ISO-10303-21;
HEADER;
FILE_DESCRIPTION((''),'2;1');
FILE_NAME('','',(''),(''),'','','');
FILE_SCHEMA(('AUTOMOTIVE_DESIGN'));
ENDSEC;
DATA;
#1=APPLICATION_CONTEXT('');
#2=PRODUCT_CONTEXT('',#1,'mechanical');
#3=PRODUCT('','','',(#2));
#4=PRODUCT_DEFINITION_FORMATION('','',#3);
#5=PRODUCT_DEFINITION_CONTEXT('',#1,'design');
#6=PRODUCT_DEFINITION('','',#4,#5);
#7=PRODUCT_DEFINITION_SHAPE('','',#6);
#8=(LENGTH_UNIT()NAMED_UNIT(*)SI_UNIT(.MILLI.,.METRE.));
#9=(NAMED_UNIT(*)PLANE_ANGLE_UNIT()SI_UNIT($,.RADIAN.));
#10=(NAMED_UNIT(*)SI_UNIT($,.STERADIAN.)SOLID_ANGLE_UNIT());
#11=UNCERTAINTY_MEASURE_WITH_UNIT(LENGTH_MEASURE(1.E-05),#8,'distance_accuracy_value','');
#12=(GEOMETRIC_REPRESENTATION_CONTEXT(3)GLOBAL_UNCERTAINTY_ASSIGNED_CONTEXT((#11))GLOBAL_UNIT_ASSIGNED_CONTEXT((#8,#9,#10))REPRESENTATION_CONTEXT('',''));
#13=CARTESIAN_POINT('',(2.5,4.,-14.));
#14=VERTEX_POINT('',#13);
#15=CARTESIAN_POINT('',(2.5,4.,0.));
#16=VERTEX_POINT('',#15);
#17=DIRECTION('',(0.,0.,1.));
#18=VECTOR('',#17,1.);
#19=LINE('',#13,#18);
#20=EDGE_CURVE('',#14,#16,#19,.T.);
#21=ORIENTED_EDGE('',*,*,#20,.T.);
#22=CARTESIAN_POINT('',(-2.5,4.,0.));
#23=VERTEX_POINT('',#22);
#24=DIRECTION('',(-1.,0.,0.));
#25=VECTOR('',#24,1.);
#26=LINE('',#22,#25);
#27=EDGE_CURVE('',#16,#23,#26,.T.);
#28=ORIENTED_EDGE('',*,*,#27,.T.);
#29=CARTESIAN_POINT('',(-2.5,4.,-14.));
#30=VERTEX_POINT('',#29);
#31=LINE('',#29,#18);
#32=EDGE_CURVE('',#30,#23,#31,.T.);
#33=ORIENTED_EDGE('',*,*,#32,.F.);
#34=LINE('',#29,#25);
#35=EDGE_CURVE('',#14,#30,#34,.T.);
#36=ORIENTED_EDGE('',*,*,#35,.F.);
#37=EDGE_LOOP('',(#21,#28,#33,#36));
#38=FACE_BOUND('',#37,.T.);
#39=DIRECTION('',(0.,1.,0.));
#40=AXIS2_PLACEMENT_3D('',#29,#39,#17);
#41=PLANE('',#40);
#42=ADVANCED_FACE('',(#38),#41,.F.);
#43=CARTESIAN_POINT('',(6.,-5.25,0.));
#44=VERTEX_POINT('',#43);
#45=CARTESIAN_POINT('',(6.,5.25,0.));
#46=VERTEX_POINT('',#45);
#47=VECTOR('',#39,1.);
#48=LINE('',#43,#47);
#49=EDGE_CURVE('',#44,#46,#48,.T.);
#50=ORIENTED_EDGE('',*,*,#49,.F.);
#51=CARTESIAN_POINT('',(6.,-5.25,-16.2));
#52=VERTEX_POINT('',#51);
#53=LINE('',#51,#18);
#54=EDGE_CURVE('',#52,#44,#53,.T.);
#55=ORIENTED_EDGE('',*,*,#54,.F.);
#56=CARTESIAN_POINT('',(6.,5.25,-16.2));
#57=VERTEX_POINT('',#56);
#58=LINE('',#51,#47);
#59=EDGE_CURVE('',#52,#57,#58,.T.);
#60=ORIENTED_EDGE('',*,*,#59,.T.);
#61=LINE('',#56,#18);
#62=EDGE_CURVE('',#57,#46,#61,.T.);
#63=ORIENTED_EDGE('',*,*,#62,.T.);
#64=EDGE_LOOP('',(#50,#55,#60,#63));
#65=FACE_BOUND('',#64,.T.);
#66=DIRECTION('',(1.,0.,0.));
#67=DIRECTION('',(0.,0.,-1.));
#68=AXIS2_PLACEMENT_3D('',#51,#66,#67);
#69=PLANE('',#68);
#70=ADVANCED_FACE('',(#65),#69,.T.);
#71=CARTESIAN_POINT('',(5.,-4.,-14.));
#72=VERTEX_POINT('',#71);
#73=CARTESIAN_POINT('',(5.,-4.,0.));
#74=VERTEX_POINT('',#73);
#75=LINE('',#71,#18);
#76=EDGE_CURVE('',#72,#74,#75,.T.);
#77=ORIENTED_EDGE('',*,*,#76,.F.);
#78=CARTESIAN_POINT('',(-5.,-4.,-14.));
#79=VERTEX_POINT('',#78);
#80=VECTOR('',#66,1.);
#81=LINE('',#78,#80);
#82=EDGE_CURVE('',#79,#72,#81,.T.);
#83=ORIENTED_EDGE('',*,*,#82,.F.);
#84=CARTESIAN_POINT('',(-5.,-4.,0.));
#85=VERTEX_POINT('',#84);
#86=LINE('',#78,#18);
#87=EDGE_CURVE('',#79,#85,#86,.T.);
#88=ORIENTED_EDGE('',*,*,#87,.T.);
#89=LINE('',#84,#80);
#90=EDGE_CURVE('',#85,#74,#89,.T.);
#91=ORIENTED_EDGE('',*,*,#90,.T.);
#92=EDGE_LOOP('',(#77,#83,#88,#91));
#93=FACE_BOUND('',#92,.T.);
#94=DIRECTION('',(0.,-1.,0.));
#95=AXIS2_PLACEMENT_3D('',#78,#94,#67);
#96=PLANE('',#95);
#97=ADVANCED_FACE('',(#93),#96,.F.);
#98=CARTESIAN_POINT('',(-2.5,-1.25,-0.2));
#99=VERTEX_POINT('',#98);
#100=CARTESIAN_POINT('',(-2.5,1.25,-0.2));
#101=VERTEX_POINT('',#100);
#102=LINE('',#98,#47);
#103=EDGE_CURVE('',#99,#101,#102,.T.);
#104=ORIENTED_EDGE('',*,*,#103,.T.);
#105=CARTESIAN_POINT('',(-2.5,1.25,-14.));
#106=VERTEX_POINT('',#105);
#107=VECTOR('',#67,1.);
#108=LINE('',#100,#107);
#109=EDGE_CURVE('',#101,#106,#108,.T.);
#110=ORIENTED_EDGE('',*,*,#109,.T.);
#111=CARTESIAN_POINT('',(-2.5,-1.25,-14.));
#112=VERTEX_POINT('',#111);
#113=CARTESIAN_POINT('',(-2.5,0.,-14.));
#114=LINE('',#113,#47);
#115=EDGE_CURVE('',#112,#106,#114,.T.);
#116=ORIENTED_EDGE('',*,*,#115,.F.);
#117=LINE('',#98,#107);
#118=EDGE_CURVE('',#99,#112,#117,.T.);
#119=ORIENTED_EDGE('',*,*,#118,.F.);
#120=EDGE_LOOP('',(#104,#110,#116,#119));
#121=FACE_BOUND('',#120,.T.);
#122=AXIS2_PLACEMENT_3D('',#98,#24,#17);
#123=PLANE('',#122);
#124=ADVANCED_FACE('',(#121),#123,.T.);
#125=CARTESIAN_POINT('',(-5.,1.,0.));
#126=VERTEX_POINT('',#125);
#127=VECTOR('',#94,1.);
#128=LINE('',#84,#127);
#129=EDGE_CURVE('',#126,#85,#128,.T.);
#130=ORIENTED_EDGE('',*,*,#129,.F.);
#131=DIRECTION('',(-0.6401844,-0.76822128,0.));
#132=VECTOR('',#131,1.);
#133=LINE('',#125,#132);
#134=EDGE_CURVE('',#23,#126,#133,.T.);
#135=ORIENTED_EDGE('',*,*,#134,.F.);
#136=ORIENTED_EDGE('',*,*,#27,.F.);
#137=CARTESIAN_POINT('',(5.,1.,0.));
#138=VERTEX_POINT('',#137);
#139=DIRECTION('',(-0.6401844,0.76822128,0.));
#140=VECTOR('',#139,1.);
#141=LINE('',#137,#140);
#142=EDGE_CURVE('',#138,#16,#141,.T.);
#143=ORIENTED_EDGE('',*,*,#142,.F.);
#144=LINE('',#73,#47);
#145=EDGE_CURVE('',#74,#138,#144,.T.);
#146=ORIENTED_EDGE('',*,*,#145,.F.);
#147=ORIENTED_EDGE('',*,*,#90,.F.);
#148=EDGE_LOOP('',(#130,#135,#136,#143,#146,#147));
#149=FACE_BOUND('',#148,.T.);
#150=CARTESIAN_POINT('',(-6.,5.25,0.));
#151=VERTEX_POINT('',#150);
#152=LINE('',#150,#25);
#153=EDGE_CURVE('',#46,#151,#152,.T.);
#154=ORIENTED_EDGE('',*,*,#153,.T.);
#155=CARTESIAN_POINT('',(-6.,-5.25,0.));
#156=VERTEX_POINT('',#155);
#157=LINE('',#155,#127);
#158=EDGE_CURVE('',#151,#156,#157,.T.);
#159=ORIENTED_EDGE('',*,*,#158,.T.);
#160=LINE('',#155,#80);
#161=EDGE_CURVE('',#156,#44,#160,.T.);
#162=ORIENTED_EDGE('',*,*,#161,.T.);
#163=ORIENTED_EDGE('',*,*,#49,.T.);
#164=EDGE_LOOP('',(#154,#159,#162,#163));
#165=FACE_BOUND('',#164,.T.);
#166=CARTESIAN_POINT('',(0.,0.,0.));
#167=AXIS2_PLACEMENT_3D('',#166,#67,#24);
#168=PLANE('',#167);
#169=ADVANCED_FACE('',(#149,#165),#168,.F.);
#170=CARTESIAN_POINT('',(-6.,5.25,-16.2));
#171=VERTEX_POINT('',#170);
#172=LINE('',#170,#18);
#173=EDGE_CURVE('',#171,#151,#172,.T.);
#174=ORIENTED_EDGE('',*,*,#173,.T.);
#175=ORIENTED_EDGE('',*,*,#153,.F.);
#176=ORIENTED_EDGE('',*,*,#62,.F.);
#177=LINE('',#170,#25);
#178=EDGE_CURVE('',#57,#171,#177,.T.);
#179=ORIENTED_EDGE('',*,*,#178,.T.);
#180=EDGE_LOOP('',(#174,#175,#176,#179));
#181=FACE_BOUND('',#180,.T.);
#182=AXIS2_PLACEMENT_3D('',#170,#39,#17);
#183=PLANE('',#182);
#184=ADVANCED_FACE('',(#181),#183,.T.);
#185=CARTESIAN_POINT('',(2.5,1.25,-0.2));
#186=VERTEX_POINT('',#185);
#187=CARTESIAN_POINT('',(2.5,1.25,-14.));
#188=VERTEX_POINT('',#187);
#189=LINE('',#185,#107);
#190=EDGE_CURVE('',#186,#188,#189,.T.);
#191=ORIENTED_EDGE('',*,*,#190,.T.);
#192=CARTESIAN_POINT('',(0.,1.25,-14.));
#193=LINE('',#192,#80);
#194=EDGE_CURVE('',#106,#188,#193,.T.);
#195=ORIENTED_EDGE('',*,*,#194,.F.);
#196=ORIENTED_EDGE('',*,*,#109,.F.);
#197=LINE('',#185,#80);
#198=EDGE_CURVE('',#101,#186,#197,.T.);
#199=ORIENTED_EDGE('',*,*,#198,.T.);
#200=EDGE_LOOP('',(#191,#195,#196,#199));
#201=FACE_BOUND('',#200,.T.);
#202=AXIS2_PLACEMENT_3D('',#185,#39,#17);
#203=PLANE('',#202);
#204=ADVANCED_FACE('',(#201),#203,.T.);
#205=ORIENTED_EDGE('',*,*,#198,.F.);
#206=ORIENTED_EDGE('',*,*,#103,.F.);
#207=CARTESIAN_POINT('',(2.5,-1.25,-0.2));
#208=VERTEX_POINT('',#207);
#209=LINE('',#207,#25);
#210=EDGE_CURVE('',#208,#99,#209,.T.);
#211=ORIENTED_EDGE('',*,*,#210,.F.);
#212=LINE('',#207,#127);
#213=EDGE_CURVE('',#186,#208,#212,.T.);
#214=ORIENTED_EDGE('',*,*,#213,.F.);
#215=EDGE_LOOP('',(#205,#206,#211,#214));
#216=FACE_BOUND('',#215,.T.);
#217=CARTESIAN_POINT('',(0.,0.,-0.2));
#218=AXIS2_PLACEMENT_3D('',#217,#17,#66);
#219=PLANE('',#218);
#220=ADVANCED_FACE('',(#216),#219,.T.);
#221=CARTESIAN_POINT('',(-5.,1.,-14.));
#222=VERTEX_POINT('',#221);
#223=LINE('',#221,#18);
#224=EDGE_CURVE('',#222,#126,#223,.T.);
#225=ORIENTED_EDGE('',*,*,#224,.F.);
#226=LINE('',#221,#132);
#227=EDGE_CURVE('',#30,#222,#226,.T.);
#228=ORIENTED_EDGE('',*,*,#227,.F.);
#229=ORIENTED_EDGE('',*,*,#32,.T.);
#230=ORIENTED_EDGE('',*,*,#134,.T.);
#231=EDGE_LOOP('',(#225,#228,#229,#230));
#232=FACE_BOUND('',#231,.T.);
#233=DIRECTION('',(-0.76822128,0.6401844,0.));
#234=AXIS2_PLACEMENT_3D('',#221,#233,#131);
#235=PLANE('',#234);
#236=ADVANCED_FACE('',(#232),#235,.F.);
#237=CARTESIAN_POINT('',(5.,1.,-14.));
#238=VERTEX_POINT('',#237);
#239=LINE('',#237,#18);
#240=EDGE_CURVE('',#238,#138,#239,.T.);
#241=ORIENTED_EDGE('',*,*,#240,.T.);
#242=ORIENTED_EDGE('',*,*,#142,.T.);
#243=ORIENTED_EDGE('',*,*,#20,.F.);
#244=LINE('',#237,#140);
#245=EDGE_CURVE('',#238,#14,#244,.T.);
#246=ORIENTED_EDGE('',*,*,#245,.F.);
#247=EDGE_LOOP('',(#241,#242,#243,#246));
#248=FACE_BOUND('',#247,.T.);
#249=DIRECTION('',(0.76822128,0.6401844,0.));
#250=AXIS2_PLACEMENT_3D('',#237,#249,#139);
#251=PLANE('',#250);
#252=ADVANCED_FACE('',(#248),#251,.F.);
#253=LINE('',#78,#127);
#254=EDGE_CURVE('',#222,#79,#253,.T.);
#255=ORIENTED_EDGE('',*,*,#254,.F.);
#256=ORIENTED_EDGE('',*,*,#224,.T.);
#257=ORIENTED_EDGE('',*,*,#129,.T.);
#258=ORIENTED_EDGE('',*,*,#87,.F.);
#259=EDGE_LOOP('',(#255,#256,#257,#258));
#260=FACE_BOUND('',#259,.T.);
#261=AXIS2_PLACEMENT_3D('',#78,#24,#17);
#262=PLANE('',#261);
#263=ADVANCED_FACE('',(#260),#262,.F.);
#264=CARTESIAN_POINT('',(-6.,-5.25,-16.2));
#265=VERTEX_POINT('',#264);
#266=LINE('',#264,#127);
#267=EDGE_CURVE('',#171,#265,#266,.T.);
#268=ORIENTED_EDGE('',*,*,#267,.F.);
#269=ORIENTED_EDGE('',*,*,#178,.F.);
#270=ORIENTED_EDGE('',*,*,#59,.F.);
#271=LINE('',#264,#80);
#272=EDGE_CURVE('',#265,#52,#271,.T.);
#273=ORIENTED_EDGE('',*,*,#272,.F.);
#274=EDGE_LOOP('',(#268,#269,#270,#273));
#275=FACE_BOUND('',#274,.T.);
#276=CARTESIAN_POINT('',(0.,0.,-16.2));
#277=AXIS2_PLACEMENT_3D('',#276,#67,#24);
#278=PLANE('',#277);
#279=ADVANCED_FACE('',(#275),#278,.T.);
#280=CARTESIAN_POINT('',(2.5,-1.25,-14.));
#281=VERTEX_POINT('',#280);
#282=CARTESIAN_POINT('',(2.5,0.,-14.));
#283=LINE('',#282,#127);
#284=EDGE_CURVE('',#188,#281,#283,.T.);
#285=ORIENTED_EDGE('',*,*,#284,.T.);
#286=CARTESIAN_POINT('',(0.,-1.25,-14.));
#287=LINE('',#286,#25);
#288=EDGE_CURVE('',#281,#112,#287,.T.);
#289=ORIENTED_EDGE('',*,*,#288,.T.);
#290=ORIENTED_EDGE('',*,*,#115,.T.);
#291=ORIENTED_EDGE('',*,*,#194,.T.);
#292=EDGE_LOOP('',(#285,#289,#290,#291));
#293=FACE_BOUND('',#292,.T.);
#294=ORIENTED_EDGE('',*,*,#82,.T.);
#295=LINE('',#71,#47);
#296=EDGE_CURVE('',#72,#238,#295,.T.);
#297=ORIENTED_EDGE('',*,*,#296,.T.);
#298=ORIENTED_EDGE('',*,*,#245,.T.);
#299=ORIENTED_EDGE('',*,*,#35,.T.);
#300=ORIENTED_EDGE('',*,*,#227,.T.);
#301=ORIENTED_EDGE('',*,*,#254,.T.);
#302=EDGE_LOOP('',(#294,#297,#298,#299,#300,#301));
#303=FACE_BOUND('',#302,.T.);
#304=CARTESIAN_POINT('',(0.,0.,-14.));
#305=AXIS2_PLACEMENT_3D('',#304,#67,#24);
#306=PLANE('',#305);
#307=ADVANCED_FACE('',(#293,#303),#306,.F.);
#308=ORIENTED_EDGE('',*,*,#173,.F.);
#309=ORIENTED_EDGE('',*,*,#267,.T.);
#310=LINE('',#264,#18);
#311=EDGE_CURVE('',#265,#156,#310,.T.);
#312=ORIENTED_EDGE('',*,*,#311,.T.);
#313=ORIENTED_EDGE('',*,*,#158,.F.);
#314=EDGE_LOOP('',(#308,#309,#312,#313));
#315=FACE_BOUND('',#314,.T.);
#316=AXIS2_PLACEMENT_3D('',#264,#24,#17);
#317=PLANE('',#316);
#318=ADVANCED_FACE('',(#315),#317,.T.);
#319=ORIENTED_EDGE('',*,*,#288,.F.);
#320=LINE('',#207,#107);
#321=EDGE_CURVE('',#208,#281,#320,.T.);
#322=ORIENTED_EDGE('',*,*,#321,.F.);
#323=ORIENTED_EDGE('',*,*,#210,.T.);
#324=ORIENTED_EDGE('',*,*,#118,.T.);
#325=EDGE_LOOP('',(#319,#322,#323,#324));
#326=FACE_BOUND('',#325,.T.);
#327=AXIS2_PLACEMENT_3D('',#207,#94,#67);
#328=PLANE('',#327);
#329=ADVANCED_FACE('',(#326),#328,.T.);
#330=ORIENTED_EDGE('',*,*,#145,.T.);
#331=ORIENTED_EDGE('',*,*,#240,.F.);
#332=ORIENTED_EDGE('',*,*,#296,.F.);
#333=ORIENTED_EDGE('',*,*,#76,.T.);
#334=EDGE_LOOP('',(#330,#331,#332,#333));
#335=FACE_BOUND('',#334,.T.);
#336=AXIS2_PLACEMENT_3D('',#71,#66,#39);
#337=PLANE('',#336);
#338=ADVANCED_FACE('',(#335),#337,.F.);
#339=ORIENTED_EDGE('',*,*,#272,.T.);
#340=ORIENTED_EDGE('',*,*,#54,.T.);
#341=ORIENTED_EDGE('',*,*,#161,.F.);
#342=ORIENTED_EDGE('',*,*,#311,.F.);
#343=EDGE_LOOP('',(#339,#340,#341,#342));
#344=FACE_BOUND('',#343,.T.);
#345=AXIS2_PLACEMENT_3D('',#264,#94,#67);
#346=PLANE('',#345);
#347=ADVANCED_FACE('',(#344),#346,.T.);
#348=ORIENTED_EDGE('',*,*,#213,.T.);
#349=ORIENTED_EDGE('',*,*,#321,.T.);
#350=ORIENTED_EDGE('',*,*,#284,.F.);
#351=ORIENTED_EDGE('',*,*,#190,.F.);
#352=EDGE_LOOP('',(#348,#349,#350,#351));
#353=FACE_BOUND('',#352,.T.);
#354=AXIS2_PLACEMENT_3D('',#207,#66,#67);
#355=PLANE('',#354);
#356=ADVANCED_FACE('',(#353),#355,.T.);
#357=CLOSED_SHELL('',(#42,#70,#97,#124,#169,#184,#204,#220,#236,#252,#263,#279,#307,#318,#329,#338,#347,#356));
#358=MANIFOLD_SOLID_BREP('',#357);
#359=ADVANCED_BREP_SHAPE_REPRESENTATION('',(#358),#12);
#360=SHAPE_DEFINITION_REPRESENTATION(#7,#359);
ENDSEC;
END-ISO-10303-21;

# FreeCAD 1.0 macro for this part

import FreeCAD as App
import Part
import Sketcher


def add_polygon(sketch, points):
    """Adds a closed chain of lines whose ends are joined by coincident constraints."""
    first, n = sketch.GeometryCount, len(points)
    for a, b in zip(points, points[1:] + points[:1]):
        sketch.addGeometry(Part.LineSegment(App.Vector(*a, 0), App.Vector(*b, 0)), False)
    for i in range(n):
        sketch.addConstraint(Sketcher.Constraint("Coincident", first + i, 2, first + (i + 1) % n, 1))

doc = App.newDocument("Part")
body = doc.addObject("PartDesign::Body", "Body")

sketch1 = body.newObject("Sketcher::SketchObject", "Sketch")
sketch1.AttachmentSupport = (doc.getObject("XY_Plane"), [""])
sketch1.MapMode = "FlatFace"
add_polygon(sketch1, [(-6, 5), (-6, -5), (6, -5), (6, 5)])
sketch1.addConstraint([
    Sketcher.Constraint("Vertical", 0),
    Sketcher.Constraint("Horizontal", 1),
    Sketcher.Constraint("Vertical", 2),
    Sketcher.Constraint("Horizontal", 3),
    Sketcher.Constraint("Symmetric", 0, 2, 2, 2, -1, 1),
    Sketcher.Constraint("DistanceX", 1, 1, 1, 2, 12.0),
    Sketcher.Constraint("DistanceY", 0, 2, 0, 1, 10.5),
])
pad1 = body.newObject("PartDesign::Pad", "Pad")
pad1.Profile = sketch1
pad1.Length = 16.2
pad1.Reversed = True

sketch2 = body.newObject("Sketcher::SketchObject", "Sketch001")
sketch2.AttachmentSupport = (doc.getObject("XY_Plane"), [""])
sketch2.MapMode = "FlatFace"
add_polygon(sketch2, [(-2.5, 4), (-5, 1), (-5, -4), (5, -4), (5, 1), (2.5, 4)])
sketch2.addConstraint([
    Sketcher.Constraint("Vertical", 1),
    Sketcher.Constraint("Horizontal", 2),
    Sketcher.Constraint("Vertical", 3),
    Sketcher.Constraint("Horizontal", 5),
    Sketcher.Constraint("Symmetric", 0, 2, 3, 2, -2),
    Sketcher.Constraint("Equal", 5, 1),
    Sketcher.Constraint("Equal", 0, 4),
    Sketcher.Constraint("DistanceX", 2, 1, 2, 2, 10.0),
    Sketcher.Constraint("DistanceX", 5, 2, 5, 1, 5.0),
    Sketcher.Constraint("DistanceY", -1, 1, 0, 2, 1.0),
    Sketcher.Constraint("DistanceY", -1, 1, 4, 2, 4.0),
])
pocket1 = body.newObject("PartDesign::Pocket", "Pocket")
pocket1.Profile = sketch2
pocket1.Length = 14

sketch3 = body.newObject("Sketcher::SketchObject", "Sketch002")
sketch3.AttachmentSupport = (doc.getObject("XY_Plane"), [""])
sketch3.MapMode = "FlatFace"
sketch3.AttachmentOffset = App.Placement(App.Vector(0, 0, -16.2), App.Rotation())
add_polygon(sketch3, [(2.5, 1.2), (2.5, -1.2), (-2.5, -1.2), (-2.5, 1.2)])
sketch3.addConstraint([
    Sketcher.Constraint("Vertical", 0),
    Sketcher.Constraint("Horizontal", 1),
    Sketcher.Constraint("Vertical", 2),
    Sketcher.Constraint("Horizontal", 3),
    Sketcher.Constraint("Symmetric", 0, 2, 2, 2, -1, 1),
    Sketcher.Constraint("DistanceX", 1, 2, 1, 1, 5.0),
    Sketcher.Constraint("DistanceY", 0, 2, 0, 1, 2.5),
])
pad2 = body.newObject("PartDesign::Pad", "Pad001")
pad2.Profile = sketch3
pad2.Length = 16

doc.recompute()
